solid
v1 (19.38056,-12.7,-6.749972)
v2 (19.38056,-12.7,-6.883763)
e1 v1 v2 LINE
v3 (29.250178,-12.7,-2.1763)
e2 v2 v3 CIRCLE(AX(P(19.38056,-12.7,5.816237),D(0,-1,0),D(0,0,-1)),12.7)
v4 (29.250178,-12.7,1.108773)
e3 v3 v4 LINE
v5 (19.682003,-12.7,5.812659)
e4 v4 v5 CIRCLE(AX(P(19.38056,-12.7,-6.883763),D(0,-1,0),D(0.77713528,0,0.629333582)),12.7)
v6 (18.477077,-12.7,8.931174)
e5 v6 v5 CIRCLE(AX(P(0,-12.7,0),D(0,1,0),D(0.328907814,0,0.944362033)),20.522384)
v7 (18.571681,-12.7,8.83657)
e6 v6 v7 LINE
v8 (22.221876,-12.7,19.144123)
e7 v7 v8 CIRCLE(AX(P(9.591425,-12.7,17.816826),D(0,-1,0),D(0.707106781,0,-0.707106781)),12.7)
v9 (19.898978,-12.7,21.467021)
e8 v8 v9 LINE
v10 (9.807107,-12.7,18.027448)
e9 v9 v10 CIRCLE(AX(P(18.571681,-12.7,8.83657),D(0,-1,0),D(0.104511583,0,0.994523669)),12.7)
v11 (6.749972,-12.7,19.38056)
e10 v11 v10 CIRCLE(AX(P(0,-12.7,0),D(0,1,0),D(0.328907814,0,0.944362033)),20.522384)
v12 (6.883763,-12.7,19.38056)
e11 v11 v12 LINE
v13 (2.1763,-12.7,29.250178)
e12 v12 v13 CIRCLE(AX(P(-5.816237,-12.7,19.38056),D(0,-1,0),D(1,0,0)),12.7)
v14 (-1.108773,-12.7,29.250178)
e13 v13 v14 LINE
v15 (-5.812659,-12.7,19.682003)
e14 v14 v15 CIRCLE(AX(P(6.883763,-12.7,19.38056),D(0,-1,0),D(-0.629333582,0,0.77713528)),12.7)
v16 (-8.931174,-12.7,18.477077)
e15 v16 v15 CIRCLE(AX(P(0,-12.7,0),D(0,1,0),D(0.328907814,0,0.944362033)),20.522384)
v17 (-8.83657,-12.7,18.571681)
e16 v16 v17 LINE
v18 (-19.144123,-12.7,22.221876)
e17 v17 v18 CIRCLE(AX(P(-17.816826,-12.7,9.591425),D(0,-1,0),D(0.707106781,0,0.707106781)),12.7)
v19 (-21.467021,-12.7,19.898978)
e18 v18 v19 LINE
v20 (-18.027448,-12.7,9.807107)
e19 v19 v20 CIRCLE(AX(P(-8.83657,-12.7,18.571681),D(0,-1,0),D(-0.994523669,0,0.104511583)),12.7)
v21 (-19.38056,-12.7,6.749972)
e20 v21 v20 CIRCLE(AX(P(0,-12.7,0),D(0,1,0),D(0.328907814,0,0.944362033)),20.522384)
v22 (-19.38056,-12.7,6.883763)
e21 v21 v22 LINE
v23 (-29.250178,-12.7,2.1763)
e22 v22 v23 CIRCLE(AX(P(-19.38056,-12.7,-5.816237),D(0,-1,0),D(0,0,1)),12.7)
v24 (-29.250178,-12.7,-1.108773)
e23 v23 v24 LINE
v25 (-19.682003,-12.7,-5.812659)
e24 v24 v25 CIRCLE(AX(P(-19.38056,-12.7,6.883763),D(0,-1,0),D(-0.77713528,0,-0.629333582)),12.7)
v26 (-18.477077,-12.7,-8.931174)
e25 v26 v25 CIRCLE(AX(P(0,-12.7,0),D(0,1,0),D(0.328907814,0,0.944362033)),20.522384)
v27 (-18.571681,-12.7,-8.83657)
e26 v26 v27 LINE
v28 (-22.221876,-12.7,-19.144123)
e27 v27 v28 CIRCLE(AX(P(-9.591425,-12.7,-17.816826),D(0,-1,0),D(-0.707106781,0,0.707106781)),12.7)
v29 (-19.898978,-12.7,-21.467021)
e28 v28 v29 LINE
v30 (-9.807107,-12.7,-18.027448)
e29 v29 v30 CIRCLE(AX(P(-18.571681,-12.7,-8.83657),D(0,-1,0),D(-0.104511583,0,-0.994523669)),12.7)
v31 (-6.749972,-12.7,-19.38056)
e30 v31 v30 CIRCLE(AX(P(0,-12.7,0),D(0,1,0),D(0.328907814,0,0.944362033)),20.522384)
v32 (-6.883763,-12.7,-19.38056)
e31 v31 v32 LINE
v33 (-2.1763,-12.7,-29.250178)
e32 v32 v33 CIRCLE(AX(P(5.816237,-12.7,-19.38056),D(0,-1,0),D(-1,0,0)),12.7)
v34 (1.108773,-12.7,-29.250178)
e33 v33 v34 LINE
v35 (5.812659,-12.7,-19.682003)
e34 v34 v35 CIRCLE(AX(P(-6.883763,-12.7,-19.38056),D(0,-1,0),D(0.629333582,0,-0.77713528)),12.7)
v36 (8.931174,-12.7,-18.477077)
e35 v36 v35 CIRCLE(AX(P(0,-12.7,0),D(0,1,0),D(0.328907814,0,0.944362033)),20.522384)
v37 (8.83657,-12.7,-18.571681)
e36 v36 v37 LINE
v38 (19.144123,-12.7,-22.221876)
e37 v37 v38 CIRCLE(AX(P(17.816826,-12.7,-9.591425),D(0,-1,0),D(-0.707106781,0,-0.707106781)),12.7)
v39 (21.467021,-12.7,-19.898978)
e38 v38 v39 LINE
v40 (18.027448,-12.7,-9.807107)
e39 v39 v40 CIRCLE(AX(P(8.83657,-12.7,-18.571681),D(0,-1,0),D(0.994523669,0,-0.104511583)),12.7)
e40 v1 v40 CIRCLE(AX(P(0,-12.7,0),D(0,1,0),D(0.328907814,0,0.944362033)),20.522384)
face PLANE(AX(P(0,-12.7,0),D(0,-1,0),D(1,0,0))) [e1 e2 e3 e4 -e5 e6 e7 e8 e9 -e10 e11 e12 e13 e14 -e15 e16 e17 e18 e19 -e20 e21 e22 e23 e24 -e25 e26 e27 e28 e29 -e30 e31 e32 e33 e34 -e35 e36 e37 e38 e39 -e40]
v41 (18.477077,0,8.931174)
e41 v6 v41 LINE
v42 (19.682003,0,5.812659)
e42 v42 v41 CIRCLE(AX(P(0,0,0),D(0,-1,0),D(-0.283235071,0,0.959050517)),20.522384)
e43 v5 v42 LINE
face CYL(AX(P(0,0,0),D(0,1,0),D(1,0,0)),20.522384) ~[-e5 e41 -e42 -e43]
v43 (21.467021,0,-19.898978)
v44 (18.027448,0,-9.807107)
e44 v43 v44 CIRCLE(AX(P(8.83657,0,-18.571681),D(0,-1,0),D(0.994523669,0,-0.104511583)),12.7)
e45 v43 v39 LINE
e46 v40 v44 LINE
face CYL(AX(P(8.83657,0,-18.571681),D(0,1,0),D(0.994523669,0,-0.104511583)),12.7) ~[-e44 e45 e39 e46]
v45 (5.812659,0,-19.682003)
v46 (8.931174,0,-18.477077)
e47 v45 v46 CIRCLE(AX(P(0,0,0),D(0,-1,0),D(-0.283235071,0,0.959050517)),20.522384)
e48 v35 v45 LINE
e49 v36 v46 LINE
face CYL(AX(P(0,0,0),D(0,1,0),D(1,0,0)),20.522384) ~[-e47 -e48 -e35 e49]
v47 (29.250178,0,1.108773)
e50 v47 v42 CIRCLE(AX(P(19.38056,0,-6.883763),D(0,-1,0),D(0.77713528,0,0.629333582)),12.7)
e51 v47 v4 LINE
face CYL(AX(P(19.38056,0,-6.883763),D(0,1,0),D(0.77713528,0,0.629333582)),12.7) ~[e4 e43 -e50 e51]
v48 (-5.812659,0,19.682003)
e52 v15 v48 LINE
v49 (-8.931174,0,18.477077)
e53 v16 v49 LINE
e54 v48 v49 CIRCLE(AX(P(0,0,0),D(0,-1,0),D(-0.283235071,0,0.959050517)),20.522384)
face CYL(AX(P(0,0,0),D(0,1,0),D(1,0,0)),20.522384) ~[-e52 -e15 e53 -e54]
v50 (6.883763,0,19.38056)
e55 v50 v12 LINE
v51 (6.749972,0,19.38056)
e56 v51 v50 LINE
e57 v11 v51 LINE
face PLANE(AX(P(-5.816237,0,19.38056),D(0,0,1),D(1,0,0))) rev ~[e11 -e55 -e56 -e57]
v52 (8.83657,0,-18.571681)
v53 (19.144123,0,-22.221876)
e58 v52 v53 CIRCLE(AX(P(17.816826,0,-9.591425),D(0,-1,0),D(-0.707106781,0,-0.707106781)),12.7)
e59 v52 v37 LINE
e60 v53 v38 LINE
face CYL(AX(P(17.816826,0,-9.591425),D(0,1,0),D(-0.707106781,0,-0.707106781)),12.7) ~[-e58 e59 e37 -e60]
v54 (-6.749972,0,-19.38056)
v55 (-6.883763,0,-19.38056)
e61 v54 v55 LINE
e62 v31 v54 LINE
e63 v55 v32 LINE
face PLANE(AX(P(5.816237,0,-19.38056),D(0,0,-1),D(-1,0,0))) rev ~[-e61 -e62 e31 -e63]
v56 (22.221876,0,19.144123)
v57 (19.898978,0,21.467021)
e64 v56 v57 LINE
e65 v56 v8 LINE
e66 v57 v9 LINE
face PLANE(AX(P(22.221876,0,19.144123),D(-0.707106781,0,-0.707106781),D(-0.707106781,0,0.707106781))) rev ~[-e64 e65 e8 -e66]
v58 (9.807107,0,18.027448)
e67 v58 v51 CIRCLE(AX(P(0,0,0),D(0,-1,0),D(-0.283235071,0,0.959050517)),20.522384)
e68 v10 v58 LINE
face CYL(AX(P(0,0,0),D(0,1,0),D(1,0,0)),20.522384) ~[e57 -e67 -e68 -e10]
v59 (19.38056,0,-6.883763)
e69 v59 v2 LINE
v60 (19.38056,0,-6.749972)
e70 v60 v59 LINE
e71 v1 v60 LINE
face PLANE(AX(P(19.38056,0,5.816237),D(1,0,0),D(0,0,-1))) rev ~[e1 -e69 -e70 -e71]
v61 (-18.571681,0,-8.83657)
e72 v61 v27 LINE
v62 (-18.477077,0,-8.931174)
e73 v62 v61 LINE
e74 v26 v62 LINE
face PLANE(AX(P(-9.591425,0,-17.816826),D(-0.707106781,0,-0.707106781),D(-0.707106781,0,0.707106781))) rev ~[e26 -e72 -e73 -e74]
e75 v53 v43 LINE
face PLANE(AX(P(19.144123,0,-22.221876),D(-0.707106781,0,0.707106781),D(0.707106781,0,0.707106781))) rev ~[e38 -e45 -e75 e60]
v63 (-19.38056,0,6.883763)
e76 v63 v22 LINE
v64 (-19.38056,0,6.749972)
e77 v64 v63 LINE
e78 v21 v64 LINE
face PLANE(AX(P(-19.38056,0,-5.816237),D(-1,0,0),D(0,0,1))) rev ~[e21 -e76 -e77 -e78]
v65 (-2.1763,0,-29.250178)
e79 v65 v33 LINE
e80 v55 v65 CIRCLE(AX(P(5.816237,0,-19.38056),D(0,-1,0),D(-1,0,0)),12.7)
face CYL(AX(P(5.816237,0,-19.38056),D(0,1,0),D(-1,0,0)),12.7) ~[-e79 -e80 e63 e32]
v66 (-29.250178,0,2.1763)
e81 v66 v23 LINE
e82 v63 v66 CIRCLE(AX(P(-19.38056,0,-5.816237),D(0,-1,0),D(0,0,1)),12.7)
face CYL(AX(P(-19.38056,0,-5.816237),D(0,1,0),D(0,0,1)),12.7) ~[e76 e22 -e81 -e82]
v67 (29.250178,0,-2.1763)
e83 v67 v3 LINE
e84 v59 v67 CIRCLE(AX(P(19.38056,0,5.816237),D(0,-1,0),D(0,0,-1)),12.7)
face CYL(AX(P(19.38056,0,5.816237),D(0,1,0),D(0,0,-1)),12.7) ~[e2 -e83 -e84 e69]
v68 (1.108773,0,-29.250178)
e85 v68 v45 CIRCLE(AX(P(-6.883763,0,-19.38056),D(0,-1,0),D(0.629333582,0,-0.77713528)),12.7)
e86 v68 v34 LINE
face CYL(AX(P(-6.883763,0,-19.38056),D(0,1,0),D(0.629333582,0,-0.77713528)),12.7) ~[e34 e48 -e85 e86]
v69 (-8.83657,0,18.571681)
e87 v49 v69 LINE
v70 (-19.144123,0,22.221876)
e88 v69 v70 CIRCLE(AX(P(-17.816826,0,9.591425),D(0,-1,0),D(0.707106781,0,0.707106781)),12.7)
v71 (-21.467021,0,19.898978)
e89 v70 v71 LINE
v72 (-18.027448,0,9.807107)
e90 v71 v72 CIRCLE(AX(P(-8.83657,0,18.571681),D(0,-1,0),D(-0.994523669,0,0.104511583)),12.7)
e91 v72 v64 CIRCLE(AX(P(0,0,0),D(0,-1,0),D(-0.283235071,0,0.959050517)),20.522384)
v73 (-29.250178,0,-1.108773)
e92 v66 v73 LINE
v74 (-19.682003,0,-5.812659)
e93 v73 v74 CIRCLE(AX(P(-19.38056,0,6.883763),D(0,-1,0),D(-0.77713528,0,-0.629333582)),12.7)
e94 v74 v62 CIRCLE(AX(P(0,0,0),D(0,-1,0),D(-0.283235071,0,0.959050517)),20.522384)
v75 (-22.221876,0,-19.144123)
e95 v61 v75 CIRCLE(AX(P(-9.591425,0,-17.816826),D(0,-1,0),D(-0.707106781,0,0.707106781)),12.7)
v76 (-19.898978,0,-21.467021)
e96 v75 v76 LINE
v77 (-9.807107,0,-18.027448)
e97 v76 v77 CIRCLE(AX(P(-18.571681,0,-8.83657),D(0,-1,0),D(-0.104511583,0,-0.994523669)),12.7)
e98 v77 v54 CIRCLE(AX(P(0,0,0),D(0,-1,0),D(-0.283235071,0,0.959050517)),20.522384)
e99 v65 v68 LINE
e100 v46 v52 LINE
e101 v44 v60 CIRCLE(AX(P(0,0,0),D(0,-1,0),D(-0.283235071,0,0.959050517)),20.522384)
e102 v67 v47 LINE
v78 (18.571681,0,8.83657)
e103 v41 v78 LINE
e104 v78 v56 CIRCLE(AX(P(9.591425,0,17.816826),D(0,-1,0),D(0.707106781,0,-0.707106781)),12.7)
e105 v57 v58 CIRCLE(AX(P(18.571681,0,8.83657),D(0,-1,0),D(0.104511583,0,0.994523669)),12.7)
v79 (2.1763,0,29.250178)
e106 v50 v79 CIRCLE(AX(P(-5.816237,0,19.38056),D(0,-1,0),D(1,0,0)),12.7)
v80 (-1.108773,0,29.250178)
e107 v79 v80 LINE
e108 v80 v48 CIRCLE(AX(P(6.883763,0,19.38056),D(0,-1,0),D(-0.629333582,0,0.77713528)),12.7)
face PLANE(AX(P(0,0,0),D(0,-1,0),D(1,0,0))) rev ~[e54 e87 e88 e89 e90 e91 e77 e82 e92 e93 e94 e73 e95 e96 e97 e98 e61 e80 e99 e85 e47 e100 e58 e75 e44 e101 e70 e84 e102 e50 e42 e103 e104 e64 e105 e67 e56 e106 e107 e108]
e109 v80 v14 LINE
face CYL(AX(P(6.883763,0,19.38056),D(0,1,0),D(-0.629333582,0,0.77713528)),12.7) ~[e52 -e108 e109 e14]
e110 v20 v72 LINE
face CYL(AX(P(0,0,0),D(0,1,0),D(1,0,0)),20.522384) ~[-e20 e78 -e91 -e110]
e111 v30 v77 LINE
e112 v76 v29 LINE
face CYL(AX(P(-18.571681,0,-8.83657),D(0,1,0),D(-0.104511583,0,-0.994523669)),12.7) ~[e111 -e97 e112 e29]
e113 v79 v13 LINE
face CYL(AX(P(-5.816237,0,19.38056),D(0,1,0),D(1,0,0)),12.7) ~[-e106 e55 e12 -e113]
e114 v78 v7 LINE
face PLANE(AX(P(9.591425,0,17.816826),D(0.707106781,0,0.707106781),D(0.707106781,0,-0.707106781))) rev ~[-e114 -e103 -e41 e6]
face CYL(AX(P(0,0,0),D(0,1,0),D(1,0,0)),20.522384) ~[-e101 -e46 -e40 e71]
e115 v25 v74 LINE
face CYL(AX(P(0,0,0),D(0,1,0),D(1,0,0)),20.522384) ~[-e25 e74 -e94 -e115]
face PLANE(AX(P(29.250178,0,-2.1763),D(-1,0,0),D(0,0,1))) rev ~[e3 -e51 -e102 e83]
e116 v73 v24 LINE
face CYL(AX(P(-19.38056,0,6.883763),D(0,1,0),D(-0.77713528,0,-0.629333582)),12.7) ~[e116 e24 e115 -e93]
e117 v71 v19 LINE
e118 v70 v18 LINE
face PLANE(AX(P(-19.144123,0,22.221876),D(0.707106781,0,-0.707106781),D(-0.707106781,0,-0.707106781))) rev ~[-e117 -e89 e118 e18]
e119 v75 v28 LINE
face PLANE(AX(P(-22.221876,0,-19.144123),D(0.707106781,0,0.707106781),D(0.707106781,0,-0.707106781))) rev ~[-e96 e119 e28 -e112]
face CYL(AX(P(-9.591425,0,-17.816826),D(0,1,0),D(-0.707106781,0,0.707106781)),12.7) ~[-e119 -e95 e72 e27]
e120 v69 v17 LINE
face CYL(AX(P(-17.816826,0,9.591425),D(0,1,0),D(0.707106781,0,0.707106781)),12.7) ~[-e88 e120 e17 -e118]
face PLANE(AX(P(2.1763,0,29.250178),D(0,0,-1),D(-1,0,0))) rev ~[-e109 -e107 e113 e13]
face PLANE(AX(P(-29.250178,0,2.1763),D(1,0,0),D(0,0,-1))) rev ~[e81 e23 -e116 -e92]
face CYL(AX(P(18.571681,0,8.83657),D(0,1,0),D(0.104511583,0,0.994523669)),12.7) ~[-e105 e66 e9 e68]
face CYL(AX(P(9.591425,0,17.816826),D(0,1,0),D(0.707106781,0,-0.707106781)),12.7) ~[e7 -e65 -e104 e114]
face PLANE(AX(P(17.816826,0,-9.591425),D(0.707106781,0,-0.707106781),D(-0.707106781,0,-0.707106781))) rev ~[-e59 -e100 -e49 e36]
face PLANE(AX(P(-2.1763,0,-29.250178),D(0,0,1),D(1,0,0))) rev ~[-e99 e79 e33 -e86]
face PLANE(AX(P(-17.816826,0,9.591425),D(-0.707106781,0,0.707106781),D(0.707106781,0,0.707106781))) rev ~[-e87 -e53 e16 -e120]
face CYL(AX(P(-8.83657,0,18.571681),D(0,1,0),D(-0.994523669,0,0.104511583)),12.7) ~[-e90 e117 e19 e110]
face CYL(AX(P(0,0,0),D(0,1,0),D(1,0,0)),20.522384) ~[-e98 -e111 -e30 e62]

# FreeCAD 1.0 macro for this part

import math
import FreeCAD as App
import Part
import Sketcher
from FreeCAD import Vector
Q = App.Units.Quantity

doc = App.newDocument("Part")
body = doc.addObject("PartDesign::Body", "Body")

sketch1 = body.newObject("Sketcher::SketchObject", "Sketch")
sketch1.AttachmentSupport = (doc.getObject("XZ_Plane"), [""])
sketch1.MapMode = "FlatFace"
sketch1.addGeometry(Part.LineSegment(Vector(-5.816237, 19.38056, 0), Vector(6.883763, 19.38056, 0)), False)
sketch1.addGeometry(Part.ArcOfCircle(Part.Circle(Vector(-5.816237, 19.38056, 0), Vector(0, 0, 1), 12.7), math.radians(0), math.radians(50.999027)), False)
sketch1.addGeometry(Part.LineSegment(Vector(2.1763, 29.250178, 0), Vector(-1.108773, 29.250178, 0)), False)
sketch1.addGeometry(Part.ArcOfCircle(Part.Circle(Vector(6.883763, 19.38056, 0), Vector(0, 0, 1), 12.7), math.radians(129.000973), math.radians(180)), False)
sketch1.addConstraint(Sketcher.Constraint("Coincident", 0, 2, 1, 1))
sketch1.addConstraint(Sketcher.Constraint("Coincident", 1, 2, 2, 1))
sketch1.addConstraint(Sketcher.Constraint("Coincident", 2, 2, 3, 1))
sketch1.addConstraint(Sketcher.Constraint("Coincident", 3, 2, 0, 1))
sketch1.addConstraint(Sketcher.Constraint("Horizontal", 0))
sketch1.addConstraint(Sketcher.Constraint("Horizontal", 2))
sketch1.addConstraint(Sketcher.Constraint("Coincident", 0, 2, 3, 3))
sketch1.addConstraint(Sketcher.Constraint("Coincident", 3, 2, 1, 3))
sketch1.addConstraint(Sketcher.Constraint("Radius", 1, Q("0.5 in")))
sketch1.addConstraint(Sketcher.Constraint("DistanceX", -1, 1, 1, 2, Q("2.1763 mm")))
sketch1.addConstraint(Sketcher.Constraint("DistanceX", 2, 2, 2, 1, Q("3.285073 mm")))
sketch1.addConstraint(Sketcher.Constraint("DistanceY", -1, 1, 1, 3, Q("19.38056 mm")))
pad1 = body.newObject("PartDesign::Pad", "Pad")
pad1.Profile = sketch1
pad1.Length = Q("0.5 in")

sketch2 = body.newObject("Sketcher::SketchObject", "Sketch001")
sketch2.AttachmentSupport = (doc.getObject("XZ_Plane"), [""])
sketch2.MapMode = "FlatFace"
sketch2.addGeometry(Part.Circle(Vector(0, 0, 0), Vector(0, 0, 1), 20.522384), False)
sketch2.addConstraint(Sketcher.Constraint("Coincident", 0, 3, -1, 1))
sketch2.addConstraint(Sketcher.Constraint("Diameter", 0, Q("41.044768 mm")))
pad2 = body.newObject("PartDesign::Pad", "Pad001")
pad2.Profile = sketch2
pad2.Length = Q("0.5 in")
body2 = doc.addObject("PartDesign::Body", "Body001")
doc.recompute()

body2.BaseFeature = body
doc.recompute()

body3 = doc.addObject("PartDesign::Body", "Body002")
body3.BaseFeature = body
body3.Placement = App.Placement(Vector(0, 0, 0), App.Rotation(Vector(0, 1, 0), 45))
boolean = body2.newObject("PartDesign::Boolean", "Boolean")
boolean.Type = "Fuse"
boolean.addObjects([body3])
doc.recompute()

body4 = doc.addObject("PartDesign::Body", "Body003")
body4.BaseFeature = body
body4.Placement = App.Placement(Vector(0, 0, 0), App.Rotation(Vector(0, 1, 0), 90))
boolean2 = body2.newObject("PartDesign::Boolean", "Boolean001")
boolean2.Type = "Fuse"
boolean2.addObjects([body4])
doc.recompute()

body5 = doc.addObject("PartDesign::Body", "Body004")
body5.BaseFeature = body
body5.Placement = App.Placement(Vector(0, 0, 0), App.Rotation(Vector(0, 1, 0), 135))
boolean3 = body2.newObject("PartDesign::Boolean", "Boolean002")
boolean3.Type = "Fuse"
boolean3.addObjects([body5])
doc.recompute()

body6 = doc.addObject("PartDesign::Body", "Body005")
body6.BaseFeature = body
body6.Placement = App.Placement(Vector(0, 0, 0), App.Rotation(Vector(0, 1, 0), 180))
boolean4 = body2.newObject("PartDesign::Boolean", "Boolean003")
boolean4.Type = "Fuse"
boolean4.addObjects([body6])
doc.recompute()

body7 = doc.addObject("PartDesign::Body", "Body006")
body7.BaseFeature = body
body7.Placement = App.Placement(Vector(0, 0, 0), App.Rotation(Vector(0, 1, 0), 225))
boolean5 = body2.newObject("PartDesign::Boolean", "Boolean004")
boolean5.Type = "Fuse"
boolean5.addObjects([body7])
doc.recompute()

body8 = doc.addObject("PartDesign::Body", "Body007")
body8.BaseFeature = body
body8.Placement = App.Placement(Vector(0, 0, 0), App.Rotation(Vector(0, 1, 0), 270))
boolean6 = body2.newObject("PartDesign::Boolean", "Boolean005")
boolean6.Type = "Fuse"
boolean6.addObjects([body8])
doc.recompute()

body.Placement = App.Placement(Vector(0, 0, 0), App.Rotation(Vector(0, 1, 0), 315))
boolean7 = body2.newObject("PartDesign::Boolean", "Boolean006")
boolean7.Type = "Fuse"
boolean7.addObjects([body])
body9 = doc.addObject("PartDesign::Body", "Body008")

sketch3 = body9.newObject("Sketcher::SketchObject", "Sketch002")
sketch3.AttachmentSupport = (doc.getObject("XZ_Plane008"), [""])
sketch3.MapMode = "FlatFace"
sketch3.addGeometry(Part.LineSegment(Vector(-96.653909, 40.774807, 0), Vector(-83.953909, 40.774807, 0)), False)
sketch3.addGeometry(Part.ArcOfCircle(Part.Circle(Vector(-96.653909, 40.774807, 0), Vector(0, 0, 1), 12.7), math.radians(0), math.radians(50.999027)), False)
sketch3.addGeometry(Part.LineSegment(Vector(-88.661373, 50.644425, 0), Vector(-91.946446, 50.644425, 0)), False)
sketch3.addGeometry(Part.ArcOfCircle(Part.Circle(Vector(-83.953909, 40.774807, 0), Vector(0, 0, 1), 12.7), math.radians(129.000973), math.radians(180)), False)
sketch3.addConstraint(Sketcher.Constraint("Coincident", 0, 2, 1, 1))
sketch3.addConstraint(Sketcher.Constraint("Coincident", 1, 2, 2, 1))
sketch3.addConstraint(Sketcher.Constraint("Coincident", 2, 2, 3, 1))
sketch3.addConstraint(Sketcher.Constraint("Coincident", 3, 2, 0, 1))
sketch3.addConstraint(Sketcher.Constraint("Horizontal", 0))
sketch3.addConstraint(Sketcher.Constraint("Horizontal", 2))
sketch3.addConstraint(Sketcher.Constraint("Coincident", 0, 2, 3, 3))
sketch3.addConstraint(Sketcher.Constraint("Coincident", 3, 2, 1, 3))
sketch3.addConstraint(Sketcher.Constraint("Radius", 1, Q("0.5 in")))
sketch3.addConstraint(Sketcher.Constraint("DistanceX", 2, 2, 2, 1, Q("3.285073 mm")))
sketch3.addConstraint(Sketcher.Constraint("DistanceX", 1, 3, -1, 1, Q("96.653909 mm")))
sketch3.addConstraint(Sketcher.Constraint("DistanceY", -1, 1, 1, 3, Q("40.774807 mm")))
pad3 = body9.newObject("PartDesign::Pad", "Pad002")
pad3.Profile = sketch3
pad3.Length = Q("0.5 in")

sketch4 = body9.newObject("Sketcher::SketchObject", "Sketch003")
sketch4.AttachmentSupport = (doc.getObject("XZ_Plane008"), [""])
sketch4.MapMode = "FlatFace"
sketch4.addGeometry(Part.Circle(Vector(-88.55889, 0, 0), Vector(0, 0, 1), 43.074104), False)
sketch4.addConstraint(Sketcher.Constraint("PointOnObject", 0, 3, -1))
sketch4.addConstraint(Sketcher.Constraint("Diameter", 0, Q("86.148207 mm")))
sketch4.addConstraint(Sketcher.Constraint("DistanceX", 0, 3, -1, 1, Q("88.55889 mm")))
pad4 = body9.newObject("PartDesign::Pad", "Pad003")
pad4.Profile = sketch4
pad4.Length = Q("0.5 in")
body10 = doc.addObject("PartDesign::Body", "Body009")
doc.recompute()

body10.BaseFeature = body9
doc.recompute()

body11 = doc.addObject("PartDesign::Body", "Body010")
body11.BaseFeature = body9
body11.Placement = App.Placement(Vector(-7.656318, 0, -36.020146), App.Rotation(Vector(0, 1, 0), 24))
boolean8 = body10.newObject("PartDesign::Boolean", "Boolean007")
boolean8.Type = "Fuse"
boolean8.addObjects([body11])
doc.recompute()

body12 = doc.addObject("PartDesign::Body", "Body011")
body12.BaseFeature = body9
body12.Placement = App.Placement(Vector(-29.301426, 0, -65.812081), App.Rotation(Vector(0, 1, 0), 48))
boolean9 = body10.newObject("PartDesign::Boolean", "Boolean008")
boolean9.Type = "Fuse"
boolean9.addObjects([body12])
doc.recompute()

body13 = doc.addObject("PartDesign::Body", "Body012")
body13.BaseFeature = body9
body13.Placement = App.Placement(Vector(-61.192688, 0, -84.224509), App.Rotation(Vector(0, 1, 0), 72))
boolean10 = body10.newObject("PartDesign::Boolean", "Boolean009")
boolean10.Type = "Fuse"
boolean10.addObjects([body13])
doc.recompute()

body14 = doc.addObject("PartDesign::Body", "Body013")
body14.BaseFeature = body9
body14.Placement = App.Placement(Vector(-97.815815, 0, -88.073755), App.Rotation(Vector(0, 1, 0), 96))
boolean11 = body10.newObject("PartDesign::Boolean", "Boolean010")
boolean11.Type = "Fuse"
boolean11.addObjects([body14])
doc.recompute()

body15 = doc.addObject("PartDesign::Body", "Body014")
body15.BaseFeature = body9
body15.Placement = App.Placement(Vector(-132.838335, 0, -76.694248), App.Rotation(Vector(0, 1, 0), 120))
boolean12 = body10.newObject("PartDesign::Boolean", "Boolean011")
boolean12.Type = "Fuse"
boolean12.addObjects([body15])
doc.recompute()

body16 = doc.addObject("PartDesign::Body", "Body015")
body16.BaseFeature = body9
body16.Placement = App.Placement(Vector(-160.204537, 0, -52.053609), App.Rotation(Vector(0, 1, 0), 144))
boolean13 = body10.newObject("PartDesign::Boolean", "Boolean012")
boolean13.Type = "Fuse"
boolean13.addObjects([body16])
doc.recompute()

body17 = doc.addObject("PartDesign::Body", "Body016")
body17.BaseFeature = body9
body17.Placement = App.Placement(Vector(-175.182556, 0, -18.412429), App.Rotation(Vector(0, 1, 0), 168))
boolean14 = body10.newObject("PartDesign::Boolean", "Boolean013")
boolean14.Type = "Fuse"
boolean14.addObjects([body17])
doc.recompute()

body18 = doc.addObject("PartDesign::Body", "Body017")
body18.BaseFeature = body9
body18.Placement = App.Placement(Vector(-175.182556, 0, 18.412429), App.Rotation(Vector(0, 1, 0), 192))
boolean15 = body10.newObject("PartDesign::Boolean", "Boolean014")
boolean15.Type = "Fuse"
boolean15.addObjects([body18])
doc.recompute()

body19 = doc.addObject("PartDesign::Body", "Body018")
body19.BaseFeature = body9
body19.Placement = App.Placement(Vector(-160.204537, 0, 52.053609), App.Rotation(Vector(0, 1, 0), 216))
boolean16 = body10.newObject("PartDesign::Boolean", "Boolean015")
boolean16.Type = "Fuse"
boolean16.addObjects([body19])
doc.recompute()

body20 = doc.addObject("PartDesign::Body", "Body019")
body20.BaseFeature = body9
body20.Placement = App.Placement(Vector(-132.838335, 0, 76.694248), App.Rotation(Vector(0, 1, 0), 240))
boolean17 = body10.newObject("PartDesign::Boolean", "Boolean016")
boolean17.Type = "Fuse"
boolean17.addObjects([body20])
doc.recompute()

body21 = doc.addObject("PartDesign::Body", "Body020")
body21.BaseFeature = body9
body21.Placement = App.Placement(Vector(-97.815815, 0, 88.073755), App.Rotation(Vector(0, 1, 0), 264))
boolean18 = body10.newObject("PartDesign::Boolean", "Boolean017")
boolean18.Type = "Fuse"
boolean18.addObjects([body21])
doc.recompute()

body22 = doc.addObject("PartDesign::Body", "Body021")
body22.BaseFeature = body9
body22.Placement = App.Placement(Vector(-61.192688, 0, 84.224509), App.Rotation(Vector(0, 1, 0), 288))
boolean19 = body10.newObject("PartDesign::Boolean", "Boolean018")
boolean19.Type = "Fuse"
boolean19.addObjects([body22])
doc.recompute()

body23 = doc.addObject("PartDesign::Body", "Body022")
body23.BaseFeature = body9
body23.Placement = App.Placement(Vector(-29.301426, 0, 65.812081), App.Rotation(Vector(0, 1, 0), 312))
boolean20 = body10.newObject("PartDesign::Boolean", "Boolean019")
boolean20.Type = "Fuse"
boolean20.addObjects([body23])
doc.recompute()

body9.Placement = App.Placement(Vector(-7.656318, 0, 36.020146), App.Rotation(Vector(0, 1, 0), 336))
boolean21 = body10.newObject("PartDesign::Boolean", "Boolean020")
boolean21.Type = "Fuse"
boolean21.addObjects([body9])
body10.Visibility = False

doc.recompute()
